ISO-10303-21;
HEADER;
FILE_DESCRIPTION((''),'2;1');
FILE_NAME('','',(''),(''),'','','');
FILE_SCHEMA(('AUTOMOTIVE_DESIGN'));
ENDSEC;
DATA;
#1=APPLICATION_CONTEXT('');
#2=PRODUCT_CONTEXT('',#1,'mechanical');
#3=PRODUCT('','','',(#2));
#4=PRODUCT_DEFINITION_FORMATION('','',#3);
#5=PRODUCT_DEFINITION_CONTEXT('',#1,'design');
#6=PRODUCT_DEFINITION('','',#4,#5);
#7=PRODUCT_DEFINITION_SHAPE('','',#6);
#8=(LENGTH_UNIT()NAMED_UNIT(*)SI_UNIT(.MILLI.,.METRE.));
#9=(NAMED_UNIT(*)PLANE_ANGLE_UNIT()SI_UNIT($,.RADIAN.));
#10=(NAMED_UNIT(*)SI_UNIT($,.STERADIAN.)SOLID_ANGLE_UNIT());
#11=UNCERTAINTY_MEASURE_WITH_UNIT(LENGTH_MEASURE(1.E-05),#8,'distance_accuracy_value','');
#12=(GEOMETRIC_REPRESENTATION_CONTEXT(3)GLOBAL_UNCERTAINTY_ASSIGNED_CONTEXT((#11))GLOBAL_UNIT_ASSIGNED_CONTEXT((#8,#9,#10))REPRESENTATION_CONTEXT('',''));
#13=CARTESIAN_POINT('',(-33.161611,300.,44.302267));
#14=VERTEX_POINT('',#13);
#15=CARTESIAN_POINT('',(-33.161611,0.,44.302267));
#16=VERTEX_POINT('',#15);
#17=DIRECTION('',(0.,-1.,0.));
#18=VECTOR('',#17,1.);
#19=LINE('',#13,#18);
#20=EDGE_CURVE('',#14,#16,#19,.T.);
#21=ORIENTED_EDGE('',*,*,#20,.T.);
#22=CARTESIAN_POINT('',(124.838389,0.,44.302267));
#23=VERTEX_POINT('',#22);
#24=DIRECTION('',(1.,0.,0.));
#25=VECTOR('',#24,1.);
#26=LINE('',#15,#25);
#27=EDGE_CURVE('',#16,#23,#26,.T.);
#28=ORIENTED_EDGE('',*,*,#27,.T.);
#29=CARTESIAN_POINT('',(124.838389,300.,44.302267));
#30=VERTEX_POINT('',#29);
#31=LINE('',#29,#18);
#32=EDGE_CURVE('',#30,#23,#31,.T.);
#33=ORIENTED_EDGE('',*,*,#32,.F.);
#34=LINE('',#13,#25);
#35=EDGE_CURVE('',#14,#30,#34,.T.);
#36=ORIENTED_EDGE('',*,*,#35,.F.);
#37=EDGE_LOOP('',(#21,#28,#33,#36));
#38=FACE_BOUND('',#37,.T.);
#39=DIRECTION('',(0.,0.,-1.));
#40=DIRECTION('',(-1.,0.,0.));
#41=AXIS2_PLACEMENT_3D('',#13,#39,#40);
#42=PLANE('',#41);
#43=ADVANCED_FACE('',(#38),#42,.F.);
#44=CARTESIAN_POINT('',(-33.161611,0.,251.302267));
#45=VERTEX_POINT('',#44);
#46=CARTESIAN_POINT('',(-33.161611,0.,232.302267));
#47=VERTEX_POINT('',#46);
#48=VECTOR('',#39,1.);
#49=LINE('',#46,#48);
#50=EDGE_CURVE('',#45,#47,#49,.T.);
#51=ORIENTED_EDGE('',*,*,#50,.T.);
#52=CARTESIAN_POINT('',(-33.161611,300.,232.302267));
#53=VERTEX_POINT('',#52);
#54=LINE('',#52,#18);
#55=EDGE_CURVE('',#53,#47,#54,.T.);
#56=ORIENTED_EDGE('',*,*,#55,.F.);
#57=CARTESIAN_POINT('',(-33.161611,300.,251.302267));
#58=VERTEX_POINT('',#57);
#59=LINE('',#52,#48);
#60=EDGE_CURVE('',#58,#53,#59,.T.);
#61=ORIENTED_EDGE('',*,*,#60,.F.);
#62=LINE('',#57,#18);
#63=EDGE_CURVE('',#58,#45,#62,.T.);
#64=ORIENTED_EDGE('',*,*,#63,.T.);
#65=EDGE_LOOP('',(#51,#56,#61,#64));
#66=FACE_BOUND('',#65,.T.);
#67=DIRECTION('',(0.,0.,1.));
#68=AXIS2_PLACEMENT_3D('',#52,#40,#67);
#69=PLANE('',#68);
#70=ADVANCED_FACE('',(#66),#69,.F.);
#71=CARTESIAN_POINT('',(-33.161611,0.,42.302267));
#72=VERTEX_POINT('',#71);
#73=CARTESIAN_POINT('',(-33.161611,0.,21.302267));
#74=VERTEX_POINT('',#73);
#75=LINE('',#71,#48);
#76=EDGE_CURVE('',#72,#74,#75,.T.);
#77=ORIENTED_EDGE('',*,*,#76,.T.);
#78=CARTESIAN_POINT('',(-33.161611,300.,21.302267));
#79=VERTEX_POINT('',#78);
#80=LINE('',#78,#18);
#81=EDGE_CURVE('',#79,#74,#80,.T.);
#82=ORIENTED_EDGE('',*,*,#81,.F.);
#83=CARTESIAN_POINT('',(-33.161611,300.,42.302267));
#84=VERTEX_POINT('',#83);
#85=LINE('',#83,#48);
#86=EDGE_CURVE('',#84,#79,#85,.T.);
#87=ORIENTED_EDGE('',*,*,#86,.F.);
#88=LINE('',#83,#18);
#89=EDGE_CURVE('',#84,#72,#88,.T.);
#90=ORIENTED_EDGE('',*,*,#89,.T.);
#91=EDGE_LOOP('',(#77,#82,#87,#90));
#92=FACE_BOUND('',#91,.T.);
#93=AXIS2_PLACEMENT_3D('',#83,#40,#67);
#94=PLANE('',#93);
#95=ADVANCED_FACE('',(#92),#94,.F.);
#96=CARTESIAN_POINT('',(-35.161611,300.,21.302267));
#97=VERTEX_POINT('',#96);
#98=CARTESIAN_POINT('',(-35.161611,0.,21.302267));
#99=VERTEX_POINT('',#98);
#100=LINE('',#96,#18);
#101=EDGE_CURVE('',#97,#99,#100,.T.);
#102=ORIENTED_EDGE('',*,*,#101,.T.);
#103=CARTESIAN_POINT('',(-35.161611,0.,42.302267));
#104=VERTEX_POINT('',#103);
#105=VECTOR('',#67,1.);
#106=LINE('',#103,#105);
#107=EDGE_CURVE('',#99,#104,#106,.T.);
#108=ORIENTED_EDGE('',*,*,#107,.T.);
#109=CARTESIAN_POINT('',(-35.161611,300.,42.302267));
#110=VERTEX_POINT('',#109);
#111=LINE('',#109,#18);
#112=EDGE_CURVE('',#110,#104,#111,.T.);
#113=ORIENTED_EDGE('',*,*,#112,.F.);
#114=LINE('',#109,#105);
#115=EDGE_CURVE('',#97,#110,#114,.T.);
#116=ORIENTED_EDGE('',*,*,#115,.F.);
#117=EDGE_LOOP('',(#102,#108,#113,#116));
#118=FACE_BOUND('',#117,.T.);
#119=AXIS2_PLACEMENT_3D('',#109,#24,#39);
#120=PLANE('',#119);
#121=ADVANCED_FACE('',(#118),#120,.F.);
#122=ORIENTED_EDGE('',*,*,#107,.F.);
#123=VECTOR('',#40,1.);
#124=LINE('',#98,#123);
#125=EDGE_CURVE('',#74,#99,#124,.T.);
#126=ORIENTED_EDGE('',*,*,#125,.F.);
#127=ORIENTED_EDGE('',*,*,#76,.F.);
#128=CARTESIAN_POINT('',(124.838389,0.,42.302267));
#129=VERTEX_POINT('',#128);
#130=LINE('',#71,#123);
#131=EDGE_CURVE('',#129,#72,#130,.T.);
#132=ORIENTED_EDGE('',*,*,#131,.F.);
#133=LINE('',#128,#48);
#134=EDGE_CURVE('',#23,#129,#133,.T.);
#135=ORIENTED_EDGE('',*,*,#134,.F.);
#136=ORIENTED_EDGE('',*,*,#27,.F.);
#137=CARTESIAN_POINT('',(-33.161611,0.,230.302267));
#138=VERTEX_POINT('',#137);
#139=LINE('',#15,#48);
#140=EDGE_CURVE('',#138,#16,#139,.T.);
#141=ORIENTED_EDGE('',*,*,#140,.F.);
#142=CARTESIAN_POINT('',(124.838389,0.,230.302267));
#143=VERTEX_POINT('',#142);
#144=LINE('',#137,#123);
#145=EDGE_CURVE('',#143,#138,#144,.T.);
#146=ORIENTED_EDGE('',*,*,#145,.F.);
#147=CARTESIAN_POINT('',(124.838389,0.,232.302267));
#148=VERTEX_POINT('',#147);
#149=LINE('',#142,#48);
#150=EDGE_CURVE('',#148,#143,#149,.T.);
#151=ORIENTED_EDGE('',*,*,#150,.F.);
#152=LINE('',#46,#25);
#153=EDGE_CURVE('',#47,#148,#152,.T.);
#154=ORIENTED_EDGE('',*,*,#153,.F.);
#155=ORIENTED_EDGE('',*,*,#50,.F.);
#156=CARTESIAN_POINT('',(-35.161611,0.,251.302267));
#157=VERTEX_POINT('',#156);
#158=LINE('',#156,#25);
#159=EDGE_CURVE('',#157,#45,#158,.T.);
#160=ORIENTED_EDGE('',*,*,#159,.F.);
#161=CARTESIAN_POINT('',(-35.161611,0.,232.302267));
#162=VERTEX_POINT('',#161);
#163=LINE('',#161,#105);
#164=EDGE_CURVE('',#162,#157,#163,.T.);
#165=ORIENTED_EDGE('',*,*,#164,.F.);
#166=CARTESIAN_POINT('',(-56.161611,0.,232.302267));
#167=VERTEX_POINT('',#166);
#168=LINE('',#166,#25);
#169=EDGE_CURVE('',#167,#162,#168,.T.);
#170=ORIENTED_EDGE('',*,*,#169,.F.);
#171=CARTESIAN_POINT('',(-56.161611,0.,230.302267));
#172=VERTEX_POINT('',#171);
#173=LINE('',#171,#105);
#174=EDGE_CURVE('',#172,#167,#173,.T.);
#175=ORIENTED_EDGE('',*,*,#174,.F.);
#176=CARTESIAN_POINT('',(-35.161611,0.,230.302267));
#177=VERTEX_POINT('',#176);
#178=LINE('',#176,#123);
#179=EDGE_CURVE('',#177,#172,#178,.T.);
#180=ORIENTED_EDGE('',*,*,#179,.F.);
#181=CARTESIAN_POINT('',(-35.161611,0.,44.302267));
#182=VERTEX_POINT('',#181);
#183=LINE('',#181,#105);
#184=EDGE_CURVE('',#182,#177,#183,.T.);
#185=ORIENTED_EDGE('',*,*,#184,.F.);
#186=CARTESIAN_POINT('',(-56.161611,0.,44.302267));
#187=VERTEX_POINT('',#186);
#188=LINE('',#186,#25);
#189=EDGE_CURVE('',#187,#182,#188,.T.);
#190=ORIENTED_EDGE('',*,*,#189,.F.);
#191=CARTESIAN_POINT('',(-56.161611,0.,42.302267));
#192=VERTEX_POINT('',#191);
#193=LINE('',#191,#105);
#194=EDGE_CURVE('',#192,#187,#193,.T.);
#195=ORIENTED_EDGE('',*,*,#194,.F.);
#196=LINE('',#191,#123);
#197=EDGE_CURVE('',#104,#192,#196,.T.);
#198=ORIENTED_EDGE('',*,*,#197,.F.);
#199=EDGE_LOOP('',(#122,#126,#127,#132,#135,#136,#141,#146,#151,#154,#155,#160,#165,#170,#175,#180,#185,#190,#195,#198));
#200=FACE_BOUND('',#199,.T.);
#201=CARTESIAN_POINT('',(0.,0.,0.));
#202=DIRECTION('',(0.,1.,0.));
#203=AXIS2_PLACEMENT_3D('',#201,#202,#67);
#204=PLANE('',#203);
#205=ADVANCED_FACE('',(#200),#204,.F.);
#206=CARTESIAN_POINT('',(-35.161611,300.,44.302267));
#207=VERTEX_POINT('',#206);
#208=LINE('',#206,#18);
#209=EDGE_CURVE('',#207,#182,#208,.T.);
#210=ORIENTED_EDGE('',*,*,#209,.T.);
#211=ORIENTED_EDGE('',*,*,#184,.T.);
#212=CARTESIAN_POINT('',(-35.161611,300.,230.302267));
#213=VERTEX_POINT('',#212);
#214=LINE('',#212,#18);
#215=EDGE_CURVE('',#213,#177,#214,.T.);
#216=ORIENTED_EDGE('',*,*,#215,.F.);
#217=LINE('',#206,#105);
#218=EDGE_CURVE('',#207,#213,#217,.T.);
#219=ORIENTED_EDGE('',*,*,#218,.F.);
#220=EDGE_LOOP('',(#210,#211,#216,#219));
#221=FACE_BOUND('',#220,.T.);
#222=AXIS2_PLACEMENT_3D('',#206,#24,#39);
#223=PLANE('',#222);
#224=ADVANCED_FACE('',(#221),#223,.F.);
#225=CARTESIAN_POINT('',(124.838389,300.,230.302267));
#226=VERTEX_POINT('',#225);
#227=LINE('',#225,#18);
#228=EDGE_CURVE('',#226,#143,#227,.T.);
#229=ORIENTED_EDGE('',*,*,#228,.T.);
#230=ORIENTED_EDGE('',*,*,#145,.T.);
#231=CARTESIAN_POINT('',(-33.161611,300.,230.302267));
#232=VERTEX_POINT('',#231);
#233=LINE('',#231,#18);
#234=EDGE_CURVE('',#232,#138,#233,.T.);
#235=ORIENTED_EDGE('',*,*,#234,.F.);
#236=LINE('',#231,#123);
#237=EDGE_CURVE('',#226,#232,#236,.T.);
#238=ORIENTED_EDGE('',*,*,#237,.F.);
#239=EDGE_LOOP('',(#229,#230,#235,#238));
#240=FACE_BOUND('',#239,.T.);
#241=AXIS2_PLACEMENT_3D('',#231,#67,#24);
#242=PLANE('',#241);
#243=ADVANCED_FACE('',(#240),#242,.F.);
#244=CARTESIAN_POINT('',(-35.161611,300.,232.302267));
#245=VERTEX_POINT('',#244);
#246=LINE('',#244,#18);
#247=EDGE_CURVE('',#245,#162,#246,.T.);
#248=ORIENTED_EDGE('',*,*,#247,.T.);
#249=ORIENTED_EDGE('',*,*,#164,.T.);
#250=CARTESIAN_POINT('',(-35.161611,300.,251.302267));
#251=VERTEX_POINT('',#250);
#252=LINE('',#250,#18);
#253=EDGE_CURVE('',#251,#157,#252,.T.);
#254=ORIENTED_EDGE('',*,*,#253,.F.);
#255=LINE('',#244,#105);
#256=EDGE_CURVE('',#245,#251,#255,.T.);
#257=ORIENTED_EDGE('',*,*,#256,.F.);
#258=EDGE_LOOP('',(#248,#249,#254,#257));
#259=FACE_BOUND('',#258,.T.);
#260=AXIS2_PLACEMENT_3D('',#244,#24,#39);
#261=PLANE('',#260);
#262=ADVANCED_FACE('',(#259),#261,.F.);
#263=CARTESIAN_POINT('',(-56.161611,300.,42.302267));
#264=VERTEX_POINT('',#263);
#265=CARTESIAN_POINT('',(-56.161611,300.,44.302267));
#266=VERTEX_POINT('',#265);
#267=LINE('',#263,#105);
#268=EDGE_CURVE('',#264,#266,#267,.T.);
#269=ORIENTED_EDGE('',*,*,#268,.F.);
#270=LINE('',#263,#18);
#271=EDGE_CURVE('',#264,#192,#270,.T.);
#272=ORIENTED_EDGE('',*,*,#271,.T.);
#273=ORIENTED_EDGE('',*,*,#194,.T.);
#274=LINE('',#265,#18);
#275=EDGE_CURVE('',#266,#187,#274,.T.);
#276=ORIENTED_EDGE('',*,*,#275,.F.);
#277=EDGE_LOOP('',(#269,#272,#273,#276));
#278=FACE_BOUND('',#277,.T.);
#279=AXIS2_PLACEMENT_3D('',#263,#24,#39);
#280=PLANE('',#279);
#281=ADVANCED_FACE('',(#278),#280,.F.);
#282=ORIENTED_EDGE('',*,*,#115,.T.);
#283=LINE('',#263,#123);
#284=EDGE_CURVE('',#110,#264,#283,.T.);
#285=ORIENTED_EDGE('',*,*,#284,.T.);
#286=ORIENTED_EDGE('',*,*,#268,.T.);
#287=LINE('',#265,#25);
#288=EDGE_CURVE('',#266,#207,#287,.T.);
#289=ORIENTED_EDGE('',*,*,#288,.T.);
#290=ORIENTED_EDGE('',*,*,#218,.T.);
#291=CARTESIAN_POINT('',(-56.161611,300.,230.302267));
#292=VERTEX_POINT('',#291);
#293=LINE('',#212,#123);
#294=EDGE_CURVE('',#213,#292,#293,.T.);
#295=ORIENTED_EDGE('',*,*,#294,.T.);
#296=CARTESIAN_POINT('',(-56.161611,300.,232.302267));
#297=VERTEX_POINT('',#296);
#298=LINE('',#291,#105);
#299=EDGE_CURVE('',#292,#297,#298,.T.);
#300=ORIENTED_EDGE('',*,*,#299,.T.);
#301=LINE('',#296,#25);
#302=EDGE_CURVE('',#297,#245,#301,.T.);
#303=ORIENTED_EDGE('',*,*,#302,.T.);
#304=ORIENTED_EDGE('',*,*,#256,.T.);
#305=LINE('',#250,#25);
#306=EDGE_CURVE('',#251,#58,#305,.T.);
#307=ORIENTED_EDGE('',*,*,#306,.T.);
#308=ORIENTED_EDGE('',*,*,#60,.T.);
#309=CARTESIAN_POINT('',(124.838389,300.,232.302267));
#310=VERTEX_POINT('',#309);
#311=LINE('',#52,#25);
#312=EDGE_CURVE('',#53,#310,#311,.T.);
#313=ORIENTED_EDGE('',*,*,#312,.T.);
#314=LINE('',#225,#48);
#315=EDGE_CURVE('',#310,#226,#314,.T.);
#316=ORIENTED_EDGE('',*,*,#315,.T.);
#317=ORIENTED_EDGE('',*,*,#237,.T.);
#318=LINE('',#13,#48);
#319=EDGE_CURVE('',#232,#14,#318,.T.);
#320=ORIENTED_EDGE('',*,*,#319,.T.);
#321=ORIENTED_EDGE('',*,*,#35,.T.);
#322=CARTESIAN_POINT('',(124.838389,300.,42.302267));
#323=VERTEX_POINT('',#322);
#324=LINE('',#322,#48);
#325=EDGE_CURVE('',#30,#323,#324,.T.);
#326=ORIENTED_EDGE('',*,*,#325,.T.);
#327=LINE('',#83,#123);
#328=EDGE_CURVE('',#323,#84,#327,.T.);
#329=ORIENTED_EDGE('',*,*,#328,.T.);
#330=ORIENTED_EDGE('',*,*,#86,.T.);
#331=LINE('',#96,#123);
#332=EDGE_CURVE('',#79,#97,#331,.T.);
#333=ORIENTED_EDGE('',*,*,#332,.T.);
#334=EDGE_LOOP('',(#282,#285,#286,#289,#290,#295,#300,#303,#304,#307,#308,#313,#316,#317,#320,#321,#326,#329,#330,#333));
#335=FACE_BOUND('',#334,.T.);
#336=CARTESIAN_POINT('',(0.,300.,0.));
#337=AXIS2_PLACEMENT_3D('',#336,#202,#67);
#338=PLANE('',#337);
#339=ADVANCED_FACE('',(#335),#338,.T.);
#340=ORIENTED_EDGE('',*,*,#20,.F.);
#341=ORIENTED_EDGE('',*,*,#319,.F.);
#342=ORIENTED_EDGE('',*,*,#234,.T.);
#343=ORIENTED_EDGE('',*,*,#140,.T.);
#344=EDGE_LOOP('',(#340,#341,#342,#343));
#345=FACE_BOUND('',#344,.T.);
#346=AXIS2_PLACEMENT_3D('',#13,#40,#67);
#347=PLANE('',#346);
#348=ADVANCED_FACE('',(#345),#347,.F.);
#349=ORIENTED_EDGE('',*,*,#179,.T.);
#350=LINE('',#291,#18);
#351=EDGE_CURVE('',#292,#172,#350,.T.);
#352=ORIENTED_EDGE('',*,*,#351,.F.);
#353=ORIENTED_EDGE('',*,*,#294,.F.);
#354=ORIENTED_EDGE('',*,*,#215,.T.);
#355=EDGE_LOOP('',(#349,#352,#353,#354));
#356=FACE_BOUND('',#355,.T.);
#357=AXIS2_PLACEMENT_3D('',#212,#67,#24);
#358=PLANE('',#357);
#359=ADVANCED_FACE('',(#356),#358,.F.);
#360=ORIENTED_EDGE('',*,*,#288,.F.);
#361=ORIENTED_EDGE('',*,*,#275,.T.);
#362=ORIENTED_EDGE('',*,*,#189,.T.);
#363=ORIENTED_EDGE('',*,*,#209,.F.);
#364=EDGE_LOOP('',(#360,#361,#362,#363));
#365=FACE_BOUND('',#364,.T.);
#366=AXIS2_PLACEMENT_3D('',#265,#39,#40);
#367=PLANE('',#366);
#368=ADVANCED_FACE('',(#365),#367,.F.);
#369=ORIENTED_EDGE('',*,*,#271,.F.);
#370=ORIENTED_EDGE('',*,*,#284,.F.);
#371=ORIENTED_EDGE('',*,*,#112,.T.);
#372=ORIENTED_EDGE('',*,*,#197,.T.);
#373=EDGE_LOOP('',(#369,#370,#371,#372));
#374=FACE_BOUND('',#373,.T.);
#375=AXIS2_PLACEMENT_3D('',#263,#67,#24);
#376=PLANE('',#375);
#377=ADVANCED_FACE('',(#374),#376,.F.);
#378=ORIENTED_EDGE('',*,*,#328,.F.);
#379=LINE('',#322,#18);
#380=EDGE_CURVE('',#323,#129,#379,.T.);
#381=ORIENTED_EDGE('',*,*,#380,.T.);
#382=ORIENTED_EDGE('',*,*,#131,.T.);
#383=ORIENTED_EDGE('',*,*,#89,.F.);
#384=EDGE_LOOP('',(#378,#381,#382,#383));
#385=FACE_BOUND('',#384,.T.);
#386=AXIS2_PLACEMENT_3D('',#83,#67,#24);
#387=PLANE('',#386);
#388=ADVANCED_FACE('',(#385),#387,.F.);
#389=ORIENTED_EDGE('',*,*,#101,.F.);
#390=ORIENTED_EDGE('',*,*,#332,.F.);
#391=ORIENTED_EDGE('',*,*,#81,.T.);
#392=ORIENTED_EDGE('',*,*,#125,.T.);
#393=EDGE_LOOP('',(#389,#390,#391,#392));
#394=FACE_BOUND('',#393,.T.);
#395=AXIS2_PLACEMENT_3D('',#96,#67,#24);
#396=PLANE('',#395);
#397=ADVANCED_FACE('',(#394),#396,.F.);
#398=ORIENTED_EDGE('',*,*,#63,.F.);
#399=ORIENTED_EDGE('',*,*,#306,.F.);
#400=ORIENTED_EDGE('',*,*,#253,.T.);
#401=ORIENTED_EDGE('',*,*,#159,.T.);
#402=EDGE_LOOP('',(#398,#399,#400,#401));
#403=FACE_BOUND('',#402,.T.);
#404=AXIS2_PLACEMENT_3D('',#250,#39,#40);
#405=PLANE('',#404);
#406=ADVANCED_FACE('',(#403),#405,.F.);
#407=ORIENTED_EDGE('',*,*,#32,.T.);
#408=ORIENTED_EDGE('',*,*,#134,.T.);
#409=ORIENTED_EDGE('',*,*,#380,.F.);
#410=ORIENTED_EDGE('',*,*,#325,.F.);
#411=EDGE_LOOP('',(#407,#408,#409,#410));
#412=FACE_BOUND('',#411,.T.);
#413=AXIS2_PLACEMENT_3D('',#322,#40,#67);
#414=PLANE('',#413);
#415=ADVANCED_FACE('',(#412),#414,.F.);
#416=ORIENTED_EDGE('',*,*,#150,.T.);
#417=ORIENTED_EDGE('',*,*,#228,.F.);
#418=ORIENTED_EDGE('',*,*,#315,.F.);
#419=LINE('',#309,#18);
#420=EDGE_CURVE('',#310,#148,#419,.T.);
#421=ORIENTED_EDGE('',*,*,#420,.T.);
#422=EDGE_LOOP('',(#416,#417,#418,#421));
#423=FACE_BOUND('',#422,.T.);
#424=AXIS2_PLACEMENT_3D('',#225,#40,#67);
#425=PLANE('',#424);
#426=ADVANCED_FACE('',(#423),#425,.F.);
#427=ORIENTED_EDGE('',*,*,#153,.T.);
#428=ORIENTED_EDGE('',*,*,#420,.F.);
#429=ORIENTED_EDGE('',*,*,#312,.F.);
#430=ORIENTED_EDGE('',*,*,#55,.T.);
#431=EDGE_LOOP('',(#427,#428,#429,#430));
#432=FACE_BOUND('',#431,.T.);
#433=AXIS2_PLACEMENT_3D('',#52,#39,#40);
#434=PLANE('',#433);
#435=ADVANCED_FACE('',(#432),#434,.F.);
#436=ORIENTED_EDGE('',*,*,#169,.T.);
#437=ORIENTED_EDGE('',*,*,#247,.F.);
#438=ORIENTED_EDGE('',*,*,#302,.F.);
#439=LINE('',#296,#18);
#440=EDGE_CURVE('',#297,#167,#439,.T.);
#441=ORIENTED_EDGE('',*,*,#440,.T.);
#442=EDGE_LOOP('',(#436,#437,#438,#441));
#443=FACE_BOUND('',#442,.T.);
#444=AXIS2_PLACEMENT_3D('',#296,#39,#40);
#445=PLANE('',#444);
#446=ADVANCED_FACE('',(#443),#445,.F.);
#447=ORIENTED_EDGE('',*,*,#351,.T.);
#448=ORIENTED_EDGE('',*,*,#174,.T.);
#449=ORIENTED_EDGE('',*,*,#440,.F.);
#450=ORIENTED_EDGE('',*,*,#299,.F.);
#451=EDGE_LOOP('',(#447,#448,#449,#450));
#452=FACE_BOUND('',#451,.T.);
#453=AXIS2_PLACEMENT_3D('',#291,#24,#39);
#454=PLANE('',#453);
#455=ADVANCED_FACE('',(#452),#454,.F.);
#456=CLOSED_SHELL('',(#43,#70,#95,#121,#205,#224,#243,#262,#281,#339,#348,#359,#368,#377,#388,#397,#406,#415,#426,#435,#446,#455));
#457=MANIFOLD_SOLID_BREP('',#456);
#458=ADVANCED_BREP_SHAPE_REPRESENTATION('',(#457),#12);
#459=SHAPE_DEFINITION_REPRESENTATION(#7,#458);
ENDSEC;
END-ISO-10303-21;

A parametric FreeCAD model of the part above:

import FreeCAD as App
import Part
import Sketcher

V = App.Vector

doc = App.newDocument("Part")
body = doc.addObject("PartDesign::Body", "Body")

# Sketch on XZ plane
sketch1 = doc.addObject("Sketcher::SketchObject", "Sketch")
body.addObject(sketch1)
sketch1.AttachmentSupport = (doc.XZ_Plane, [""])
sketch1.MapMode = "FlatFace"
sketch1.addGeometry([
    Part.LineSegment(V(-35.161611, 42.302267, 0), V(-56.161611, 42.302267, 0)),  # 0
    Part.LineSegment(V(-56.161611, 42.302267, 0), V(-56.161611, 44.302267, 0)),  # 1
    Part.LineSegment(V(-56.161611, 44.302267, 0), V(-35.161611, 44.302267, 0)),  # 2
    Part.LineSegment(V(-35.161611, 44.302267, 0), V(-35.161611, 230.302267, 0)),  # 3
    Part.LineSegment(V(-35.161611, 230.302267, 0), V(-56.161611, 230.302267, 0)),  # 4
    Part.LineSegment(V(-56.161611, 230.302267, 0), V(-56.161611, 232.302267, 0)),  # 5
    Part.LineSegment(V(-56.161611, 232.302267, 0), V(-35.161611, 232.302267, 0)),  # 6
    Part.LineSegment(V(-35.161611, 232.302267, 0), V(-35.161611, 251.302267, 0)),  # 7
    Part.LineSegment(V(-35.161611, 251.302267, 0), V(-33.161611, 251.302267, 0)),  # 8
    Part.LineSegment(V(-33.161611, 251.302267, 0), V(-33.161611, 232.302267, 0)),  # 9
    Part.LineSegment(V(-33.161611, 232.302267, 0), V(124.838389, 232.302267, 0)),  # 10
    Part.LineSegment(V(124.838389, 232.302267, 0), V(124.838389, 230.302267, 0)),  # 11
    Part.LineSegment(V(124.838389, 230.302267, 0), V(-33.161611, 230.302267, 0)),  # 12
    Part.LineSegment(V(-33.161611, 230.302267, 0), V(-33.161611, 44.302267, 0)),  # 13
    Part.LineSegment(V(-33.161611, 44.302267, 0), V(124.838389, 44.302267, 0)),  # 14
    Part.LineSegment(V(124.838389, 44.302267, 0), V(124.838389, 42.302267, 0)),  # 15
    Part.LineSegment(V(124.838389, 42.302267, 0), V(-33.161611, 42.302267, 0)),  # 16
    Part.LineSegment(V(-33.161611, 42.302267, 0), V(-33.161611, 21.302267, 0)),  # 17
    Part.LineSegment(V(-33.161611, 21.302267, 0), V(-35.161611, 21.302267, 0)),  # 18
    Part.LineSegment(V(-35.161611, 21.302267, 0), V(-35.161611, 42.302267, 0)),  # 19
], False)
sketch1.addConstraint([
    Sketcher.Constraint("Coincident", 0, 2, 1, 1),
    Sketcher.Constraint("Coincident", 1, 2, 2, 1),
    Sketcher.Constraint("Coincident", 2, 2, 3, 1),
    Sketcher.Constraint("Coincident", 3, 2, 4, 1),
    Sketcher.Constraint("Coincident", 4, 2, 5, 1),
    Sketcher.Constraint("Coincident", 5, 2, 6, 1),
    Sketcher.Constraint("Coincident", 6, 2, 7, 1),
    Sketcher.Constraint("Coincident", 7, 2, 8, 1),
    Sketcher.Constraint("Coincident", 8, 2, 9, 1),
    Sketcher.Constraint("Coincident", 9, 2, 10, 1),
    Sketcher.Constraint("Coincident", 10, 2, 11, 1),
    Sketcher.Constraint("Coincident", 11, 2, 12, 1),
    Sketcher.Constraint("Coincident", 12, 2, 13, 1),
    Sketcher.Constraint("Coincident", 13, 2, 14, 1),
    Sketcher.Constraint("Coincident", 14, 2, 15, 1),
    Sketcher.Constraint("Coincident", 15, 2, 16, 1),
    Sketcher.Constraint("Coincident", 16, 2, 17, 1),
    Sketcher.Constraint("Coincident", 17, 2, 18, 1),
    Sketcher.Constraint("Coincident", 18, 2, 19, 1),
    Sketcher.Constraint("Coincident", 19, 2, 0, 1),
    Sketcher.Constraint("Horizontal", 0),
    Sketcher.Constraint("Vertical", 1),
    Sketcher.Constraint("Horizontal", 2),
    Sketcher.Constraint("Vertical", 3),
    Sketcher.Constraint("Horizontal", 4),
    Sketcher.Constraint("Vertical", 5),
    Sketcher.Constraint("Horizontal", 6),
    Sketcher.Constraint("Vertical", 7),
    Sketcher.Constraint("Horizontal", 8),
    Sketcher.Constraint("Vertical", 9),
    Sketcher.Constraint("Horizontal", 10),
    Sketcher.Constraint("Vertical", 11),
    Sketcher.Constraint("Horizontal", 12),
    Sketcher.Constraint("Vertical", 13),
    Sketcher.Constraint("Horizontal", 14),
    Sketcher.Constraint("Vertical", 15),
    Sketcher.Constraint("Horizontal", 16),
    Sketcher.Constraint("Vertical", 17),
    Sketcher.Constraint("Horizontal", 18),
    Sketcher.Constraint("Vertical", 19),
    Sketcher.Constraint("Horizontal", 6, 2, 9, 2),
    Sketcher.Constraint("Horizontal", 4, 2, 11, 2),
    Sketcher.Constraint("Horizontal", 2, 2, 13, 2),
    Sketcher.Constraint("Horizontal", 0, 2, 15, 2),
    Sketcher.Constraint("Vertical", 1, 2, 4, 2),
    Sketcher.Constraint("Vertical", 3, 2, 6, 2),
    Sketcher.Constraint("Vertical", 9, 2, 12, 2),
    Sketcher.Constraint("Vertical", 11, 2, 14, 2),
    Sketcher.Constraint("Vertical", 13, 2, 16, 2),
    Sketcher.Constraint("Vertical", 7, 2, 18, 2),
    Sketcher.Constraint("Equal", 18, 1),
    Sketcher.Constraint("Equal", 1, 5),
    Sketcher.Constraint("Equal", 6, 17),
    Sketcher.Constraint("DistanceX", 0, 2, 0, 1, 21.0),
    Sketcher.Constraint("DistanceX", 8, 1, 8, 2, 2.0),
    Sketcher.Constraint("DistanceX", 10, 1, 10, 2, 158.0),
    Sketcher.Constraint("DistanceY", 3, 1, 3, 2, 186.0),
    Sketcher.Constraint("DistanceY", 7, 1, 7, 2, 19.0),
    Sketcher.Constraint("DistanceX", 0, 2, -1, 1, 56.161611),
    Sketcher.Constraint("DistanceY", -1, 1, 0, 2, 42.302267),
])
pad1 = doc.addObject("PartDesign::Pad", "Pad")
body.addObject(pad1)
pad1.Profile = sketch1
pad1.Length = 300
pad1.Reversed = True

doc.recompute()
